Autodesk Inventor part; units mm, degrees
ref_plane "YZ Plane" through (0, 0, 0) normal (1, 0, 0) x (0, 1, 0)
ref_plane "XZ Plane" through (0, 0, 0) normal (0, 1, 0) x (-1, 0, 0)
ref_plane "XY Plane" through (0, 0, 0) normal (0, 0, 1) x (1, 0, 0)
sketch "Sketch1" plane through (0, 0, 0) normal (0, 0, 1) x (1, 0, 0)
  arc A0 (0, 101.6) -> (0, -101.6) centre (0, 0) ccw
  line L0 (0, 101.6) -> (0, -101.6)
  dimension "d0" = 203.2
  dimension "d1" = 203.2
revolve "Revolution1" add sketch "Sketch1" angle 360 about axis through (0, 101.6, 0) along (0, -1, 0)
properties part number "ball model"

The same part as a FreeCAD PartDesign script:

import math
import FreeCAD as App
import Part
import Sketcher
from FreeCAD import Vector
Q = App.Units.Quantity

doc = App.newDocument("Part")
body = doc.addObject("PartDesign::Body", "Body")

# Sketch on XY plane
sketch1 = body.newObject("Sketcher::SketchObject", "Sketch")
sketch1.AttachmentSupport = (doc.getObject("XY_Plane"), [""])
sketch1.MapMode = "FlatFace"
sketch1.addGeometry([
    Part.LineSegment(Vector(0, -102, 0), Vector(0, 102, 0)),
    Part.ArcOfCircle(Part.Circle(Vector(0, 0, 0), Vector(0, 0, 1), 102), math.radians(90), math.radians(270)),
], False)
sketch1.addConstraint([
    Sketcher.Constraint("Coincident", 0, 1, 1, 2),
    Sketcher.Constraint("Coincident", 1, 1, 0, 2),
    Sketcher.Constraint("Vertical", 0),
    Sketcher.Constraint("Coincident", 1, 3, -1, 1),
    Sketcher.Constraint("PointOnObject", 0, 1, -2),
    Sketcher.Constraint("Radius", 1, Q("4 in")),
])
revolution = body.newObject("PartDesign::Revolution", "Revolution")
revolution.Profile = sketch1
revolution.ReferenceAxis = (sketch1, ["V_Axis"])
revolution.Angle = 360

doc.recompute()
